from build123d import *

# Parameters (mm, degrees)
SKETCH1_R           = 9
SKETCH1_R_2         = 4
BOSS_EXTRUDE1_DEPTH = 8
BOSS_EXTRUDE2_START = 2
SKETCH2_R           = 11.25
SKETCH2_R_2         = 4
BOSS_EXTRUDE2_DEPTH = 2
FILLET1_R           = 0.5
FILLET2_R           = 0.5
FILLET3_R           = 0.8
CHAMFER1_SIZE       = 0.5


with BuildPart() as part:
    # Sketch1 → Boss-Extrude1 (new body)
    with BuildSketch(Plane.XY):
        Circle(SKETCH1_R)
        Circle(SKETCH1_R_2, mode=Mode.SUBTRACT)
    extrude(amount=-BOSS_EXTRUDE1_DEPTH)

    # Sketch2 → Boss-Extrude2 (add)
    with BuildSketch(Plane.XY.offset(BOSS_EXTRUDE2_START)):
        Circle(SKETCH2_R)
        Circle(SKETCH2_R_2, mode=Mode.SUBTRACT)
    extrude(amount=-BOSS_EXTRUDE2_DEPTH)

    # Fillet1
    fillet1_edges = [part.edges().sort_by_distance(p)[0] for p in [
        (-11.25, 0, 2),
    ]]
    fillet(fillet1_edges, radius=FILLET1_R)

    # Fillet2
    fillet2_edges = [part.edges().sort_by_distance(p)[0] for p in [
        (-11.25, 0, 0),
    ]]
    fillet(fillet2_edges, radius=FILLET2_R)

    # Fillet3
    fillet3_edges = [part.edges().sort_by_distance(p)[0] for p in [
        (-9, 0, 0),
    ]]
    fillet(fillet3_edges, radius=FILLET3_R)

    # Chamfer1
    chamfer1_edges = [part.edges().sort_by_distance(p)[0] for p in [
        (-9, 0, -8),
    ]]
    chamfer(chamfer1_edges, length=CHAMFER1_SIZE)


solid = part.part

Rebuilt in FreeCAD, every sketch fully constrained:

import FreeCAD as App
import Part
import Sketcher

V = App.Vector


def edges_at(feature, points):
    """Names of the edges that pass closest to the given points."""
    edges = feature.Shape.Edges
    near = lambda p: min(range(len(edges)), key=lambda i: edges[i].distToShape(Part.Vertex(*p))[0])
    return sorted({f"Edge{near(p) + 1}" for p in points})

doc = App.newDocument("Part")
body = doc.addObject("PartDesign::Body", "Body")

# Sketch on XY plane
sketch1 = doc.addObject("Sketcher::SketchObject", "Sketch")
body.addObject(sketch1)
sketch1.AttachmentSupport = (doc.XY_Plane, [""])
sketch1.MapMode = "FlatFace"
sketch1.addGeometry([
    Part.Circle(V(0, 0, 0), V(0, 0, 1), 9),
    Part.Circle(V(0, 0, 0), V(0, 0, 1), 4),
], False)
sketch1.addConstraint([
    Sketcher.Constraint("Coincident", 0, 3, -1, 1),
    Sketcher.Constraint("Coincident", 1, 3, -1, 1),
    Sketcher.Constraint("Diameter", 0, 18.0),
    Sketcher.Constraint("Diameter", 1, 8.0),
])
pad1 = doc.addObject("PartDesign::Pad", "Pad")
body.addObject(pad1)
pad1.Profile = sketch1
pad1.Length = 8
pad1.Reversed = True

# Sketch on XY plane
sketch2 = doc.addObject("Sketcher::SketchObject", "Sketch001")
body.addObject(sketch2)
sketch2.AttachmentSupport = (doc.XY_Plane, [""])
sketch2.MapMode = "FlatFace"
sketch2.AttachmentOffset = App.Placement(V(0, 0, 2), App.Rotation())
sketch2.addGeometry([
    Part.Circle(V(0, 0, 0), V(0, 0, 1), 11.2),
    Part.Circle(V(0, 0, 0), V(0, 0, 1), 4),
], False)
sketch2.addConstraint([
    Sketcher.Constraint("Coincident", 0, 3, -1, 1),
    Sketcher.Constraint("Coincident", 1, 3, -1, 1),
    Sketcher.Constraint("Diameter", 1, 8.0),
    Sketcher.Constraint("Diameter", 0, 22.5),
])
pad2 = doc.addObject("PartDesign::Pad", "Pad001")
body.addObject(pad2)
pad2.Profile = sketch2
pad2.Length = 2
pad2.Reversed = True
doc.recompute()

fillet = doc.addObject("PartDesign::Fillet", "Fillet")
body.addObject(fillet)
fillet.Base = (pad2, edges_at(pad2, [(-11.25, 0, 2)]))
fillet.Radius = 0.5
doc.recompute()

fillet2 = doc.addObject("PartDesign::Fillet", "Fillet001")
body.addObject(fillet2)
fillet2.Base = (fillet, edges_at(fillet, [(-11.25, 0, 0)]))
fillet2.Radius = 0.5
doc.recompute()

fillet3 = doc.addObject("PartDesign::Fillet", "Fillet002")
body.addObject(fillet3)
fillet3.Base = (fillet2, edges_at(fillet2, [(-9, 0, 0)]))
fillet3.Radius = 0.8
doc.recompute()

chamfer = doc.addObject("PartDesign::Chamfer", "Chamfer")
body.addObject(chamfer)
chamfer.Base = (fillet3, edges_at(fillet3, [(-9, 0, -8)]))
chamfer.Size = 0.5

doc.recompute()
